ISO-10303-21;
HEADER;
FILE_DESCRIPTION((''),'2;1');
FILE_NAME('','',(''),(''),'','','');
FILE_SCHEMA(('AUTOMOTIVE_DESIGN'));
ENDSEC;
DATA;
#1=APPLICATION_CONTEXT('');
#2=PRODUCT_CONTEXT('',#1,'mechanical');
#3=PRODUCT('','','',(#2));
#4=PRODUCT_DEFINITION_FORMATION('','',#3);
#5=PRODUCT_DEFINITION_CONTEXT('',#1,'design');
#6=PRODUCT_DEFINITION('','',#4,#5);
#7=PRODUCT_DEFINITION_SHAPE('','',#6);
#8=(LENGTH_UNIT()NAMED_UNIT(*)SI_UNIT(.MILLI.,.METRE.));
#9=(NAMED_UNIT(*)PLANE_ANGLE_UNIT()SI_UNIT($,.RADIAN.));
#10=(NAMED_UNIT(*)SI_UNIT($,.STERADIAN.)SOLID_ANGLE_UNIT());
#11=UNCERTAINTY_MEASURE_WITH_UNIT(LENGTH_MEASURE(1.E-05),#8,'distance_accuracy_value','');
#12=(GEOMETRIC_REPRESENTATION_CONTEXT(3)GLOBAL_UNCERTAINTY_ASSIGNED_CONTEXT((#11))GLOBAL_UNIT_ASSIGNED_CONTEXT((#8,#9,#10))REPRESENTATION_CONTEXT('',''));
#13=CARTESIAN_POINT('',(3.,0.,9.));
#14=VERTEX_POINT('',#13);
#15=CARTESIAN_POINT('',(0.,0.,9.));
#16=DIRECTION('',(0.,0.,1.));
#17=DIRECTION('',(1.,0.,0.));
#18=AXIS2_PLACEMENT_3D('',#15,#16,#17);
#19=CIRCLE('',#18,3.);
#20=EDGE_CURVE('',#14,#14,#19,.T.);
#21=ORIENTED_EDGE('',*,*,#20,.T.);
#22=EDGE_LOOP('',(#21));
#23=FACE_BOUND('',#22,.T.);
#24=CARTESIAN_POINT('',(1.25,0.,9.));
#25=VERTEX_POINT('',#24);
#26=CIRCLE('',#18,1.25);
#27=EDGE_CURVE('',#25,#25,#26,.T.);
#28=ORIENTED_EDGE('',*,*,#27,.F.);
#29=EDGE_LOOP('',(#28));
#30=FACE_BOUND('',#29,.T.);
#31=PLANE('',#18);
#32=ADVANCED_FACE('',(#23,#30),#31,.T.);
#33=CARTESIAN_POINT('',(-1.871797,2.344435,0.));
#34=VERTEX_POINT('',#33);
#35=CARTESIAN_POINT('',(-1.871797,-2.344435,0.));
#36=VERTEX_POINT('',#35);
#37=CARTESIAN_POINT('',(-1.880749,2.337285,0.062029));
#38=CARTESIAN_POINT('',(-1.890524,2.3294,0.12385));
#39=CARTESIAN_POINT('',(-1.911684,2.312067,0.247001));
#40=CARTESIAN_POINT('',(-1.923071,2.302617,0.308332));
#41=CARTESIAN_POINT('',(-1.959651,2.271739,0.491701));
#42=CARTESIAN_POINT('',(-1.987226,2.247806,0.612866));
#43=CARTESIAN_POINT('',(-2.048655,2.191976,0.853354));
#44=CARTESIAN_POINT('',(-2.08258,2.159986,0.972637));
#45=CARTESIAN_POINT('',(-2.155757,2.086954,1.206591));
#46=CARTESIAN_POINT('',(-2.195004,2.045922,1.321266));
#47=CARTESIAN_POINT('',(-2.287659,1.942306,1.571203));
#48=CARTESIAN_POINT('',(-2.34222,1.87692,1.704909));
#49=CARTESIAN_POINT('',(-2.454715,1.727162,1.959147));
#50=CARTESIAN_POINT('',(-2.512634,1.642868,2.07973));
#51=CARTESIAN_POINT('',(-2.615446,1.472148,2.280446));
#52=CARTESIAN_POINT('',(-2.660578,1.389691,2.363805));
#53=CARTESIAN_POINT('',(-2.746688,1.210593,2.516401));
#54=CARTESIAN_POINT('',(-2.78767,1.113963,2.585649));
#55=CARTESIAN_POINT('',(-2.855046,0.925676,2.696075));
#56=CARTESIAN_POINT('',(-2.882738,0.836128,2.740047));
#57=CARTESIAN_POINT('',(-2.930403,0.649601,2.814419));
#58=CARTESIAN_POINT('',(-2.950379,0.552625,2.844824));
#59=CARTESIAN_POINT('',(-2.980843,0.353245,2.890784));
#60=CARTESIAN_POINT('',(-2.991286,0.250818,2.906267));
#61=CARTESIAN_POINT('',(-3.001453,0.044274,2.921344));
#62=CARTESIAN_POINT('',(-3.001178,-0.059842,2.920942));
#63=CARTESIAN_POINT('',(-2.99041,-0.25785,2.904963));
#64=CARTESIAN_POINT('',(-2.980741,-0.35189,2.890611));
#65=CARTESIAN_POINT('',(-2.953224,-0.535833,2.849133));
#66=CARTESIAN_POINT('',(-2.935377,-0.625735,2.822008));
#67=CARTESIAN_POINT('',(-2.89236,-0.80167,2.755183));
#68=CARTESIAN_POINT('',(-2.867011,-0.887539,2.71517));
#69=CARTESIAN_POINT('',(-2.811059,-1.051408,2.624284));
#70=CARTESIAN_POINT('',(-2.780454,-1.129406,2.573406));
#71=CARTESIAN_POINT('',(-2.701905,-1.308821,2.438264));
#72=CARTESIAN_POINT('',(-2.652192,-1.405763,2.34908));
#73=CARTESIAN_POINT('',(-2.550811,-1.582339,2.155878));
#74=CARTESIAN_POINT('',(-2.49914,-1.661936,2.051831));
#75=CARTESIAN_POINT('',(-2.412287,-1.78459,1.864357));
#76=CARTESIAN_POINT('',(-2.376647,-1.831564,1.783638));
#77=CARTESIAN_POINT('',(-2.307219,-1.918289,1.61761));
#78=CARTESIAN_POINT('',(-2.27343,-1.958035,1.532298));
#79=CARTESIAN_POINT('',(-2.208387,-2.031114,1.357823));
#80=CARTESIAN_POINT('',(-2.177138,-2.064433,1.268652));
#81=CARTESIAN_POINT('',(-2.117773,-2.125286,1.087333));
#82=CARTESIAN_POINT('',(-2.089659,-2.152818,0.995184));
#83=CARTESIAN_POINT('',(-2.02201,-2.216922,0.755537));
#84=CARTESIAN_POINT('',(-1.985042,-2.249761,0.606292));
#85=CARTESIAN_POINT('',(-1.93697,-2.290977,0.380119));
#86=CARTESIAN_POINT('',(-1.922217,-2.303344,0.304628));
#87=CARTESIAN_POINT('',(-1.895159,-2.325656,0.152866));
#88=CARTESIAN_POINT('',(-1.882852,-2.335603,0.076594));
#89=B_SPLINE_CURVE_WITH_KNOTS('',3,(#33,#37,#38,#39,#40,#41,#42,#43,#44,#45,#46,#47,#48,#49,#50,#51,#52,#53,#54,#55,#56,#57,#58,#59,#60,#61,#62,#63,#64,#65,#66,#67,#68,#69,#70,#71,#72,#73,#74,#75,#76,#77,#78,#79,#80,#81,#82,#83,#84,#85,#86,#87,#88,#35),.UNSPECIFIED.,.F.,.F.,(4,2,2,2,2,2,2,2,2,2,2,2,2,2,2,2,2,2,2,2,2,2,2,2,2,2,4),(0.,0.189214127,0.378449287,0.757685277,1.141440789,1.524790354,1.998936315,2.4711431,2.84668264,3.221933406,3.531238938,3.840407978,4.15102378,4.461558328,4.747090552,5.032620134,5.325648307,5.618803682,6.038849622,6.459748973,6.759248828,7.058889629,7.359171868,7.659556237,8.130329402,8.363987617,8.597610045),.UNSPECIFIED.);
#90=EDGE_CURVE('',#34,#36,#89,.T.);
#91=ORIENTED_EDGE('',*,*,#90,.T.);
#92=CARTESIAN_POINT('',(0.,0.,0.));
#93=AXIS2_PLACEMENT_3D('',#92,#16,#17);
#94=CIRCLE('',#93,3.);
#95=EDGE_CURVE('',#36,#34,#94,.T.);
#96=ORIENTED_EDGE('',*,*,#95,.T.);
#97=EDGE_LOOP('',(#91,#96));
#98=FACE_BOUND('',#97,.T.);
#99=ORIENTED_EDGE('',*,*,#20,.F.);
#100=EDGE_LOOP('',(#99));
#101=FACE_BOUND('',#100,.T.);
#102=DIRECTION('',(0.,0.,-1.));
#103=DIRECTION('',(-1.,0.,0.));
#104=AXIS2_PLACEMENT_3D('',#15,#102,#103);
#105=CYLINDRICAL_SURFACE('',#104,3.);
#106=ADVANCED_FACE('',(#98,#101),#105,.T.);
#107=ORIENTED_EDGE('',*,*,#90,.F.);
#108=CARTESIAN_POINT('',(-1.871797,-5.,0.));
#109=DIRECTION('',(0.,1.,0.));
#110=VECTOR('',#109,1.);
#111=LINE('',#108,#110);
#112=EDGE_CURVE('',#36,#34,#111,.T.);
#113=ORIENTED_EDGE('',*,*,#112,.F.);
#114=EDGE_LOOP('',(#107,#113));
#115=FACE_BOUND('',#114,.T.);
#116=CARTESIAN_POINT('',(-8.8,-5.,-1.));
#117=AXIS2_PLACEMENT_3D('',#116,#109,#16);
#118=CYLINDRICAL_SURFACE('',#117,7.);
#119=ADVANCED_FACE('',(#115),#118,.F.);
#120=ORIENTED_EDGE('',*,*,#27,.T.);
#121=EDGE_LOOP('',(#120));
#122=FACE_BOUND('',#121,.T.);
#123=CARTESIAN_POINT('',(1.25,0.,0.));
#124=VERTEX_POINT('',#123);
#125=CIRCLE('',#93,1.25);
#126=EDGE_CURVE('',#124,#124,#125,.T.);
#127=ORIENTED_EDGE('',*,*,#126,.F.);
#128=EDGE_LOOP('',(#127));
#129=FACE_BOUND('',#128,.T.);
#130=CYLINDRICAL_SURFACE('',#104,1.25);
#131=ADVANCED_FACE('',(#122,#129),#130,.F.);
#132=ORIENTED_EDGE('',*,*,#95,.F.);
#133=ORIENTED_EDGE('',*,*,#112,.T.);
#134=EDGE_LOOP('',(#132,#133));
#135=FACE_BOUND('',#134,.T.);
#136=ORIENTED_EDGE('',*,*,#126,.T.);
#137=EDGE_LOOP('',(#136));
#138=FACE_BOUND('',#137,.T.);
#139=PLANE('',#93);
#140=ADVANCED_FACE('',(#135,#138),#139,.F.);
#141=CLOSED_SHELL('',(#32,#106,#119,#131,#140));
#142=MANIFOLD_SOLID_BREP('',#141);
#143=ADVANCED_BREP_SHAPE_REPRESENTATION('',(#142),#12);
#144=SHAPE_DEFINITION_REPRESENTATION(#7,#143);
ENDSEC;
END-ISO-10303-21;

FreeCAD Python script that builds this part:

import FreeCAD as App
import Part
import Sketcher

V = App.Vector
Q = App.Units.Quantity

doc = App.newDocument("Part")
params = doc.addObject("Spreadsheet::Sheet", "Params")
for row, (alias, value) in enumerate([
    ("sketch1_diameter", "6 mm"),
    ("sketch1_diameter2", "2.5 mm"),
    ("pad1_length", "9 mm"),
    ("sketch2_diameter", "14 mm"),
    ("pocket1_length", "10 mm"),
], start=1):
    params.set(f"A{row}", alias)
    params.set(f"B{row}", "=" + value)
    params.setAlias(f"B{row}", alias)

body = doc.addObject("PartDesign::Body", "Body")

# Sketch on XY plane
sketch1 = doc.addObject("Sketcher::SketchObject", "Sketch")
body.addObject(sketch1)
sketch1.AttachmentSupport = (doc.XY_Plane, [""])
sketch1.MapMode = "FlatFace"
sketch1.addGeometry([
    Part.Circle(V(0, 0, 0), V(0, 0, 1), 3),
    Part.Circle(V(0, 0, 0), V(0, 0, 1), 1.2),
], False)
sketch1.addConstraint([
    Sketcher.Constraint("Coincident", 0, 3, -1, 1),
    Sketcher.Constraint("Coincident", 1, 3, -1, 1),
    Sketcher.Constraint("Diameter", 0, Q("6 mm")),
    Sketcher.Constraint("Diameter", 1, Q("2.5 mm")),
])
sketch1.setExpression("Constraints[2]", "Params.sketch1_diameter")
sketch1.setExpression("Constraints[3]", "Params.sketch1_diameter2")
pad1 = doc.addObject("PartDesign::Pad", "Pad")
body.addObject(pad1)
pad1.Profile = sketch1
pad1.setExpression("Length", "Params.pad1_length")

# Sketch on XZ plane
sketch2 = doc.addObject("Sketcher::SketchObject", "Sketch001")
body.addObject(sketch2)
sketch2.AttachmentSupport = (doc.XZ_Plane, [""])
sketch2.MapMode = "FlatFace"
sketch2.addGeometry(Part.Circle(V(-9, -1, 0), V(0, 0, 1), 7), False)
sketch2.addConstraint([
    Sketcher.Constraint("Diameter", 0, Q("14 mm")),
    Sketcher.Constraint("DistanceY", 0, 3, -1, 1, Q("1 mm")),
    Sketcher.Constraint("DistanceX", 0, 3, -1, 1, Q("8.8 mm")),
])
sketch2.setExpression("Constraints[0]", "Params.sketch2_diameter")
pocket1 = doc.addObject("PartDesign::Pocket", "Pocket")
body.addObject(pocket1)
pocket1.Profile = sketch2
pocket1.setExpression("Length", "Params.pocket1_length")
pocket1.Midplane = True

doc.recompute()
